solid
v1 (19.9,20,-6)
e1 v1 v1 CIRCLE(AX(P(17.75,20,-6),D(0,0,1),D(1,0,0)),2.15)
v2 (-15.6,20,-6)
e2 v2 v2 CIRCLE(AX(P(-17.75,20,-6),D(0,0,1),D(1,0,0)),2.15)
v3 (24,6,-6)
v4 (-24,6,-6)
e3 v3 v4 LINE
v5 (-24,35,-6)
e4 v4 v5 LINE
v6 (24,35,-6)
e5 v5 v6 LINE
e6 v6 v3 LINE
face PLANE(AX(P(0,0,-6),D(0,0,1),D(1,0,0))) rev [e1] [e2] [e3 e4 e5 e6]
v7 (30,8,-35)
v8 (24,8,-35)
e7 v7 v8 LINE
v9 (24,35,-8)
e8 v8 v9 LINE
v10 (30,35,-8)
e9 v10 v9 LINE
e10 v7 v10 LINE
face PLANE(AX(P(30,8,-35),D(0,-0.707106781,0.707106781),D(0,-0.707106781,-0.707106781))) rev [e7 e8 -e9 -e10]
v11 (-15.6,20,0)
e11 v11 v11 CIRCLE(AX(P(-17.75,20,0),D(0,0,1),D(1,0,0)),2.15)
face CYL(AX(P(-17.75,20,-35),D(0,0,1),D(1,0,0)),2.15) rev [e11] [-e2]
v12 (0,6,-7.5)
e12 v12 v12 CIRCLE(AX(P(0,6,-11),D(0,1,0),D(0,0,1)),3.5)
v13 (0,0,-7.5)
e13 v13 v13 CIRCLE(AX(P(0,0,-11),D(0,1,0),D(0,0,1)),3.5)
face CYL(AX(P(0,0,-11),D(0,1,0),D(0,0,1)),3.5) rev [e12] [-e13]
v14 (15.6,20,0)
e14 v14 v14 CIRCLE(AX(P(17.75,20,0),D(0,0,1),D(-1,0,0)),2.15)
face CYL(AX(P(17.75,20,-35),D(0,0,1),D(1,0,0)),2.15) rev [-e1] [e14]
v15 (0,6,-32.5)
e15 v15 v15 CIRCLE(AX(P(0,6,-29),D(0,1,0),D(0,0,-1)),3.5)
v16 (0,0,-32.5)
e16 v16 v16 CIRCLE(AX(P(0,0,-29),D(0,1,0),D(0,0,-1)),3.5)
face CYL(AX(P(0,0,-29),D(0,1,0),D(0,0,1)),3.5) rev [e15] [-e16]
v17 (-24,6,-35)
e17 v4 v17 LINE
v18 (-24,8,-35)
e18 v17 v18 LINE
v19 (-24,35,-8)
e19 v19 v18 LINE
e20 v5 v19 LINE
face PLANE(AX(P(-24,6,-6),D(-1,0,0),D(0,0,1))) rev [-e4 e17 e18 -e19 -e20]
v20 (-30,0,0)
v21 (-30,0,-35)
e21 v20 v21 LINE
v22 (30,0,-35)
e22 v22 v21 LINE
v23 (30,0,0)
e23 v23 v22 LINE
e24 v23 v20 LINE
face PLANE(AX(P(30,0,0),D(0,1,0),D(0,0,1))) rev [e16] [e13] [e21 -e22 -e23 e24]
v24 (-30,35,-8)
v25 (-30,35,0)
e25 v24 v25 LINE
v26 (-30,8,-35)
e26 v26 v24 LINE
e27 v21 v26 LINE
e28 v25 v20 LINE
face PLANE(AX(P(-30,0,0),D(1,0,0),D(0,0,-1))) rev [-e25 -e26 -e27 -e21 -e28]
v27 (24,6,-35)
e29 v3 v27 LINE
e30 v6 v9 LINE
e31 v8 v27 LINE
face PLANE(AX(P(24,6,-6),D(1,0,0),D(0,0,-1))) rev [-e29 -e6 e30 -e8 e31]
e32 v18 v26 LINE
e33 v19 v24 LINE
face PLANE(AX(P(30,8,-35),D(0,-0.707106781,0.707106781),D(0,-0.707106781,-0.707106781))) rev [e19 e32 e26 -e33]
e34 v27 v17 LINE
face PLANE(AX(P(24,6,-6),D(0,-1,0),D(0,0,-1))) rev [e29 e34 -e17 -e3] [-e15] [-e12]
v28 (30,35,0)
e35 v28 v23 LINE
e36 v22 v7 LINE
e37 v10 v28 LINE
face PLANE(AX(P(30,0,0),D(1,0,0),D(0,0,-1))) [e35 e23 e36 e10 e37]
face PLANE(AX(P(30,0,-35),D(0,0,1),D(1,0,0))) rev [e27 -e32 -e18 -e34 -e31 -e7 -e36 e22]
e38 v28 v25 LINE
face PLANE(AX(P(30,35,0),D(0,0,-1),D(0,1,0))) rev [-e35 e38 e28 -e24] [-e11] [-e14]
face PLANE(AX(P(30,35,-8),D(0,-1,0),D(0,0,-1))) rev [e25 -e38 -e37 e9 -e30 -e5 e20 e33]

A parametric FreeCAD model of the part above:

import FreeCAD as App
import Part
import Sketcher
Q = App.Units.Quantity

doc = App.newDocument("Part")
params = doc.addObject("Spreadsheet::Sheet", "Params")
for row, (alias, value) in enumerate([
    ("sketch1_width", "8 mm"),
    ("sketch1_width2", "35 mm"),
    ("pad1_length", "60 mm"),
    ("sketch2_width", "48 mm"),
    ("sketch2_height", "29 mm"),
    ("pocket1_length", "29 mm"),
    ("sketch3_diameter", "4.3 mm"),
    ("sketch4_diameter", "7 mm"),
], start=1):
    params.set(f"A{row}", alias)
    params.set(f"B{row}", "=" + value)
    params.setAlias(f"B{row}", alias)

body = doc.addObject("PartDesign::Body", "Body")

# Sketch on YZ plane
sketch1 = body.newObject("Sketcher::SketchObject", "Sketch")
sketch1.AttachmentSupport = (doc.getObject("YZ_Plane"), [""])
sketch1.MapMode = "FlatFace"
sketch1.addGeometry([
    Part.LineSegment(App.Vector(0, 0, 0), App.Vector(0, -35, 0)),  # 0
    Part.LineSegment(App.Vector(0, -35, 0), App.Vector(8, -35, 0)),  # 1
    Part.LineSegment(App.Vector(8, -35, 0), App.Vector(35, -8, 0)),  # 2
    Part.LineSegment(App.Vector(35, -8, 0), App.Vector(35, 0, 0)),  # 3
    Part.LineSegment(App.Vector(35, 0, 0), App.Vector(0, 0, 0)),  # 4
], False)
sketch1.addConstraint([
    Sketcher.Constraint("Coincident", 0, 2, 1, 1),
    Sketcher.Constraint("Coincident", 1, 2, 2, 1),
    Sketcher.Constraint("Coincident", 2, 2, 3, 1),
    Sketcher.Constraint("Coincident", 3, 2, 4, 1),
    Sketcher.Constraint("Coincident", 4, 2, 0, 1),
    Sketcher.Constraint("Vertical", 0),
    Sketcher.Constraint("Horizontal", 1),
    Sketcher.Constraint("Vertical", 3),
    Sketcher.Constraint("Horizontal", 4),
    Sketcher.Constraint("Coincident", 4, 2, -1, 1),
    Sketcher.Constraint("Equal", 4, 0),
    Sketcher.Constraint("Equal", 1, 3),
    Sketcher.Constraint("DistanceX", 1, 1, 1, 2, Q("8 mm")),
    Sketcher.Constraint("DistanceX", 4, 2, 4, 1, Q("35 mm")),
])
sketch1.setExpression("Constraints[12]", "Params.sketch1_width")
sketch1.setExpression("Constraints[13]", "Params.sketch1_width2")
pad1 = body.newObject("PartDesign::Pad", "Pad")
pad1.Profile = sketch1
pad1.setExpression("Length", "Params.pad1_length")
pad1.Midplane = True

# Sketch on XY plane
sketch2 = body.newObject("Sketcher::SketchObject", "Sketch001")
sketch2.AttachmentSupport = (doc.getObject("XY_Plane"), [""])
sketch2.MapMode = "FlatFace"
sketch2.AttachmentOffset = App.Placement(App.Vector(0, 0, -35), App.Rotation())
sketch2.addGeometry([
    Part.LineSegment(App.Vector(24, 35, 0), App.Vector(24, 6, 0)),
    Part.LineSegment(App.Vector(24, 6, 0), App.Vector(-24, 6, 0)),
    Part.LineSegment(App.Vector(-24, 6, 0), App.Vector(-24, 35, 0)),
    Part.LineSegment(App.Vector(-24, 35, 0), App.Vector(24, 35, 0)),
], False)
sketch2.addConstraint([
    Sketcher.Constraint("Coincident", 0, 2, 1, 1),
    Sketcher.Constraint("Coincident", 1, 2, 2, 1),
    Sketcher.Constraint("Coincident", 2, 2, 3, 1),
    Sketcher.Constraint("Coincident", 3, 2, 0, 1),
    Sketcher.Constraint("Vertical", 0),
    Sketcher.Constraint("Horizontal", 1),
    Sketcher.Constraint("Vertical", 2),
    Sketcher.Constraint("Horizontal", 3),
    Sketcher.Constraint("DistanceX", 1, 2, 1, 1, Q("48 mm")),
    Sketcher.Constraint("DistanceY", 0, 2, 0, 1, Q("29 mm")),
    Sketcher.Constraint("DistanceX", -1, 1, 0, 2, Q("24 mm")),
    Sketcher.Constraint("DistanceY", -1, 1, 0, 2, Q("6 mm")),
])
sketch2.setExpression("Constraints[8]", "Params.sketch2_width")
sketch2.setExpression("Constraints[9]", "Params.sketch2_height")
pocket1 = body.newObject("PartDesign::Pocket", "Pocket")
pocket1.Profile = sketch2
pocket1.setExpression("Length", "Params.pocket1_length")
pocket1.Reversed = True

# Sketch on XY plane
sketch3 = body.newObject("Sketcher::SketchObject", "Sketch002")
sketch3.AttachmentSupport = (doc.getObject("XY_Plane"), [""])
sketch3.MapMode = "FlatFace"
sketch3.addGeometry([
    Part.Circle(App.Vector(-17.8, 20, 0), App.Vector(0, 0, 1), 2.1),
    Part.Circle(App.Vector(17.8, 20, 0), App.Vector(0, 0, 1), 2.1),
], False)
sketch3.addConstraint([
    Sketcher.Constraint("Equal", 0, 1),
    Sketcher.Constraint("Symmetric", 0, 3, 1, 3, -2),
    Sketcher.Constraint("Diameter", 0, Q("4.3 mm")),
    Sketcher.Constraint("DistanceY", -1, 1, 0, 3, Q("20 mm")),
    Sketcher.Constraint("DistanceX", 0, 3, 1, 3, Q("35.5 mm")),
])
sketch3.setExpression("Constraints[2]", "Params.sketch3_diameter")
pocket2 = body.newObject("PartDesign::Pocket", "Pocket001")
pocket2.Profile = sketch3
pocket2.Type = "ThroughAll"

# Sketch on XZ plane
sketch4 = body.newObject("Sketcher::SketchObject", "Sketch003")
sketch4.AttachmentSupport = (doc.getObject("XZ_Plane"), [""])
sketch4.MapMode = "FlatFace"
sketch4.AttachmentOffset = App.Placement(App.Vector(0, 0, -6), App.Rotation())
sketch4.addGeometry([
    Part.Circle(App.Vector(0, -11, 0), App.Vector(0, 0, 1), 3.5),
    Part.Circle(App.Vector(0, -29, 0), App.Vector(0, 0, 1), 3.5),
], False)
sketch4.addConstraint([
    Sketcher.Constraint("Equal", 0, 1),
    Sketcher.Constraint("PointOnObject", 0, 3, -2),
    Sketcher.Constraint("PointOnObject", 1, 3, -2),
    Sketcher.Constraint("Diameter", 0, Q("7 mm")),
    Sketcher.Constraint("DistanceY", 0, 3, -1, 1, Q("11 mm")),
    Sketcher.Constraint("DistanceY", 1, 3, -1, 1, Q("29 mm")),
])
sketch4.setExpression("Constraints[3]", "Params.sketch4_diameter")
pocket3 = body.newObject("PartDesign::Pocket", "Pocket002")
pocket3.Profile = sketch4
pocket3.Type = "ThroughAll"
pocket3.Reversed = True

doc.recompute()
